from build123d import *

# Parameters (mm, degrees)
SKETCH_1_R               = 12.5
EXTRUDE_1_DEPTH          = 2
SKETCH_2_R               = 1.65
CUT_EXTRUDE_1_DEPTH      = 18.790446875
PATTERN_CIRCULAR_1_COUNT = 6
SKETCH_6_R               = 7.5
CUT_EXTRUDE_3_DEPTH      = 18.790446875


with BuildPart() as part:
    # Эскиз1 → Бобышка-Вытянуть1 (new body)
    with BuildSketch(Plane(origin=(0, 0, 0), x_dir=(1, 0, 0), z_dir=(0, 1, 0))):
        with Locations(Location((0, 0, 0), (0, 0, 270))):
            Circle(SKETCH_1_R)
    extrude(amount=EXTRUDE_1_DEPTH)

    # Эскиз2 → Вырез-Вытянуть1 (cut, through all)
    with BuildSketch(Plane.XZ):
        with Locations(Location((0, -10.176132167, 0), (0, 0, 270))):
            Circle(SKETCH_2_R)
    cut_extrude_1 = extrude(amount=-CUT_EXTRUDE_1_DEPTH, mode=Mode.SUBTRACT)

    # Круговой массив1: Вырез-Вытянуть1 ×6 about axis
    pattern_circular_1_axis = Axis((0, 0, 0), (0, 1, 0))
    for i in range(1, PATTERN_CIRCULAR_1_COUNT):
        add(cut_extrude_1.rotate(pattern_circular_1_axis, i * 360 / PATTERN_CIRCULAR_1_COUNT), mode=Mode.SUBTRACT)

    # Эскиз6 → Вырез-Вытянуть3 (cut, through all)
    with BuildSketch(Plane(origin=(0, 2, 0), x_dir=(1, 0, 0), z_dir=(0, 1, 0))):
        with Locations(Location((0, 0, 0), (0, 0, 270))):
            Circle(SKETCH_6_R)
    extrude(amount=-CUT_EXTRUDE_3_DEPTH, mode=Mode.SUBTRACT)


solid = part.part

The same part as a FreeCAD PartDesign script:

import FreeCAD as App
import Part
import Sketcher
from FreeCAD import Vector

doc = App.newDocument("Part")
params = doc.addObject("Spreadsheet::Sheet", "Params")
for row, (alias, value) in enumerate([
    ("sketch1_diameter", "25 mm"),
    ("pad1_length", "2 mm"),
    ("sketch2_diameter", "3.3 mm"),
    ("sketch3_diameter", "15 mm"),
], start=1):
    params.set(f"A{row}", alias)
    params.set(f"B{row}", "=" + value)
    params.setAlias(f"B{row}", alias)

body = doc.addObject("PartDesign::Body", "Body")

# Sketch on XZ plane
sketch1 = doc.addObject("Sketcher::SketchObject", "Sketch")
body.addObject(sketch1)
sketch1.AttachmentSupport = (doc.XZ_Plane, [""])
sketch1.MapMode = "FlatFace"
sketch1.addGeometry(Part.Circle(Vector(0, 0, 0), Vector(0, 0, 1), 12), False)
sketch1.addConstraint(Sketcher.Constraint("Coincident", 0, 3, -1, 1))
sketch1.addConstraint(Sketcher.Constraint("Diameter", 0, 25.0))
sketch1.setExpression("Constraints[1]", "Params.sketch1_diameter")
pad1 = doc.addObject("PartDesign::Pad", "Pad")
body.addObject(pad1)
pad1.Profile = sketch1
pad1.setExpression("Length", "Params.pad1_length")
pad1.Reversed = True

# Sketch on XZ plane
sketch2 = doc.addObject("Sketcher::SketchObject", "Sketch001")
body.addObject(sketch2)
sketch2.AttachmentSupport = (doc.XZ_Plane, [""])
sketch2.MapMode = "FlatFace"
sketch2.addGeometry(Part.Circle(Vector(0, -10.2, 0), Vector(0, 0, 1), 1.6), False)
sketch2.addConstraint(Sketcher.Constraint("PointOnObject", 0, 3, -2))
sketch2.addConstraint(Sketcher.Constraint("Diameter", 0, 3.3))
sketch2.addConstraint(Sketcher.Constraint("DistanceY", 0, 3, -1, 1, 10.176132))
sketch2.setExpression("Constraints[1]", "Params.sketch2_diameter")
pocket1 = doc.addObject("PartDesign::Pocket", "Pocket")
body.addObject(pocket1)
pocket1.Profile = sketch2
pocket1.Type = "ThroughAll"
doc.recompute()

polarpattern = doc.addObject("PartDesign::PolarPattern", "PolarPattern")
body.addObject(polarpattern)
polarpattern.Originals = [pocket1]
polarpattern.Axis = (doc.Y_Axis, [""])
polarpattern.Angle = 360
polarpattern.Occurrences = 6
body.Tip = polarpattern

# Sketch on XZ plane
sketch3 = doc.addObject("Sketcher::SketchObject", "Sketch002")
body.addObject(sketch3)
sketch3.AttachmentSupport = (doc.XZ_Plane, [""])
sketch3.MapMode = "FlatFace"
sketch3.AttachmentOffset = App.Placement(Vector(0, 0, -2), App.Rotation())
sketch3.addGeometry(Part.Circle(Vector(0, 0, 0), Vector(0, 0, 1), 8), False)
sketch3.addConstraint(Sketcher.Constraint("Coincident", 0, 3, -1, 1))
sketch3.addConstraint(Sketcher.Constraint("Diameter", 0, 15.0))
sketch3.setExpression("Constraints[1]", "Params.sketch3_diameter")
pocket2 = doc.addObject("PartDesign::Pocket", "Pocket001")
body.addObject(pocket2)
pocket2.Profile = sketch3
pocket2.Type = "ThroughAll"
pocket2.Reversed = True

doc.recompute()
